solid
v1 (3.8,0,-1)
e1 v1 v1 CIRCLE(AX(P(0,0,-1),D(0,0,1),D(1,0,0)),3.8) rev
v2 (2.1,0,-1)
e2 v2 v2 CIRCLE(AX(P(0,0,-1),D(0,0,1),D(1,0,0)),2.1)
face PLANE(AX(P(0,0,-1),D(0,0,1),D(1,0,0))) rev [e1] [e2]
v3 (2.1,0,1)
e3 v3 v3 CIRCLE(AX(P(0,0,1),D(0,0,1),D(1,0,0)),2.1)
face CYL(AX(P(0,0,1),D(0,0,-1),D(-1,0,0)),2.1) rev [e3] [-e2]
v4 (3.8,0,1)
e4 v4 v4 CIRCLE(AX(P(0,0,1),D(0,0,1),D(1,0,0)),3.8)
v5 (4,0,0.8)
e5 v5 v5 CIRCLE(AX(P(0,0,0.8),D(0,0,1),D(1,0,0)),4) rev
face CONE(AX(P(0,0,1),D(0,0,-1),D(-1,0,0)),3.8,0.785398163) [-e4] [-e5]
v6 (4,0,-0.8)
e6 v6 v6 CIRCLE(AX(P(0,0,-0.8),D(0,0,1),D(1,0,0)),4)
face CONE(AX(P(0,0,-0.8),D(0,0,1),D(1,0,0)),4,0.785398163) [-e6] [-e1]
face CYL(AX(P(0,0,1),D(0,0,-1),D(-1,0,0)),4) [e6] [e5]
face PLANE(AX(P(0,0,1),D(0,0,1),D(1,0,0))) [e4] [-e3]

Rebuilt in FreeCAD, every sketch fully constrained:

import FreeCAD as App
import Part
import Sketcher
from FreeCAD import Vector
Q = App.Units.Quantity


def edges_at(feature, points):
    """Names of the edges that pass closest to the given points."""
    edges = feature.Shape.Edges
    near = lambda p: min(range(len(edges)), key=lambda i: edges[i].distToShape(Part.Vertex(*p))[0])
    return sorted({f"Edge{near(p) + 1}" for p in points})

doc = App.newDocument("Part")
params = doc.addObject("Spreadsheet::Sheet", "Params")
for row, (alias, value) in enumerate([
    ("sketch1_diameter", "8 mm"),
    ("sketch1_diameter2", "4.2 mm"),
    ("pad1_length", "2 mm"),
    ("chamfer_size", "0.2 mm"),
], start=1):
    params.set(f"A{row}", alias)
    params.set(f"B{row}", "=" + value)
    params.setAlias(f"B{row}", alias)

body = doc.addObject("PartDesign::Body", "Body")

# Sketch on XY plane
sketch1 = body.newObject("Sketcher::SketchObject", "Sketch")
sketch1.AttachmentSupport = (doc.getObject("XY_Plane"), [""])
sketch1.MapMode = "FlatFace"
sketch1.addGeometry(Part.Circle(Vector(0, 0, 0), Vector(0, 0, 1), 4), False)
sketch1.addGeometry(Part.Circle(Vector(0, 0, 0), Vector(0, 0, 1), 2.1), False)
sketch1.addConstraint(Sketcher.Constraint("Coincident", 0, 3, -1, 1))
sketch1.addConstraint(Sketcher.Constraint("Coincident", 1, 3, -1, 1))
sketch1.addConstraint(Sketcher.Constraint("Diameter", 0, Q("8 mm")))
sketch1.addConstraint(Sketcher.Constraint("Diameter", 1, Q("4.2 mm")))
sketch1.setExpression("Constraints[2]", "Params.sketch1_diameter")
sketch1.setExpression("Constraints[3]", "Params.sketch1_diameter2")
pad1 = body.newObject("PartDesign::Pad", "Pad")
pad1.Profile = sketch1
pad1.setExpression("Length", "Params.pad1_length")
pad1.Midplane = True
doc.recompute()

chamfer = body.newObject("PartDesign::Chamfer", "Chamfer")
chamfer.Base = (pad1, edges_at(pad1, [(-4, 0, -1), (-4, 0, 1)]))
chamfer.setExpression("Size", "Params.chamfer_size")

doc.recompute()
